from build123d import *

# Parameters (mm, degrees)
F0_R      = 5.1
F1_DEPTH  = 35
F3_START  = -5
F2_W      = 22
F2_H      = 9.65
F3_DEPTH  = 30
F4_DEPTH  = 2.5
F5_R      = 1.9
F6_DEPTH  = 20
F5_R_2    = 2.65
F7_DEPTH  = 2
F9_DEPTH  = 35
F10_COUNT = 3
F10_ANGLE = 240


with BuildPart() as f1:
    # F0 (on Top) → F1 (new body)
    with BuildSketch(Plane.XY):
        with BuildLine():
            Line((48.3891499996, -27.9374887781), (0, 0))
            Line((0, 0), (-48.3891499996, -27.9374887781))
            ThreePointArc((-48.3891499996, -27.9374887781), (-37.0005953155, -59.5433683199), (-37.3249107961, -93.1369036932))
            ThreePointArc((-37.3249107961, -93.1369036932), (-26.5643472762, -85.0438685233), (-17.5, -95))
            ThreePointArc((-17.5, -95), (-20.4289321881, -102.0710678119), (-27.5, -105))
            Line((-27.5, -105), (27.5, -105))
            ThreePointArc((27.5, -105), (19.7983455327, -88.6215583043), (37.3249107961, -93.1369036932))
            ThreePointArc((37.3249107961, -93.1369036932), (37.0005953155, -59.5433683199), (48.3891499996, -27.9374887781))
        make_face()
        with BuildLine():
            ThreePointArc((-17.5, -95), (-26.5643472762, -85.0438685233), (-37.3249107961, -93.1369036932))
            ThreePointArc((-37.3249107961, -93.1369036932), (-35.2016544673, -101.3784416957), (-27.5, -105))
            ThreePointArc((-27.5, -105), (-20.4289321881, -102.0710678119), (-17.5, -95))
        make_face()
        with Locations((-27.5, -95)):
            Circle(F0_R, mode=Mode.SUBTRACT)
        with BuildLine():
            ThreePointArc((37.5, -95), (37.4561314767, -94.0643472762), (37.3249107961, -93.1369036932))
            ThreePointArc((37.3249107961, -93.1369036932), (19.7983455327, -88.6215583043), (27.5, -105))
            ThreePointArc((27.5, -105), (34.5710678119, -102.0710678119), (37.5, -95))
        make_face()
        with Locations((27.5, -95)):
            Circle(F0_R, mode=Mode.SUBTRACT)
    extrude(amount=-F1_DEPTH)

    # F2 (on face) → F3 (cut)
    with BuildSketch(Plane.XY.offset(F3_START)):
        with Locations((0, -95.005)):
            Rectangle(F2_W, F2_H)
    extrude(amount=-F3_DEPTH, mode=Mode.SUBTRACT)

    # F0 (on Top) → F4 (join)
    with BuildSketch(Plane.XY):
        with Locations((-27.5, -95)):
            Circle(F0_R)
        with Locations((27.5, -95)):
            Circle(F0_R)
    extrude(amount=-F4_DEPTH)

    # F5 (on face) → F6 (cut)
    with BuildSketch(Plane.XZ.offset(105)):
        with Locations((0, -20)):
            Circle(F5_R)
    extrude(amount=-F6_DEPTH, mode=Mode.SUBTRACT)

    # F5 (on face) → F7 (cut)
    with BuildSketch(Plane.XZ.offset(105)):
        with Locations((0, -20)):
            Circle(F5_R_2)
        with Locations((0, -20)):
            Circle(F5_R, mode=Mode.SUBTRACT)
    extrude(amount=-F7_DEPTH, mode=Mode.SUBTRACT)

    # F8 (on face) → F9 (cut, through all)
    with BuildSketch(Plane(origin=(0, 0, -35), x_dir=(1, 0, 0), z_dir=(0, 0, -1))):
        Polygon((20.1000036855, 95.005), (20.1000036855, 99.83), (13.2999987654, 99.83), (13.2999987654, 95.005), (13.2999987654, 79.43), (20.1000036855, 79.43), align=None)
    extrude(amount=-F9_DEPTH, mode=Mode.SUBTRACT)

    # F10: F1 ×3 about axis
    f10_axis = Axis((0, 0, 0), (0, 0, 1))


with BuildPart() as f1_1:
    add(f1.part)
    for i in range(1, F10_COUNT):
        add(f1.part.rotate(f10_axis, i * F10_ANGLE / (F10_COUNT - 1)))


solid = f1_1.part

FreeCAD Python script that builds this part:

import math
import FreeCAD as App
import Part
import Sketcher
from FreeCAD import Vector
Q = App.Units.Quantity


def add_polygon(sketch, points):
    """Adds a closed chain of lines whose ends are joined by coincident constraints."""
    first, n = sketch.GeometryCount, len(points)
    for a, b in zip(points, points[1:] + points[:1]):
        sketch.addGeometry(Part.LineSegment(App.Vector(*a, 0), App.Vector(*b, 0)), False)
    for i in range(n):
        sketch.addConstraint(Sketcher.Constraint("Coincident", first + i, 2, first + (i + 1) % n, 1))

doc = App.newDocument("Part")
body = doc.addObject("PartDesign::Body", "Body")

sketch1 = body.newObject("Sketcher::SketchObject", "Sketch")
sketch1.AttachmentSupport = (doc.getObject("XY_Plane"), [""])
sketch1.MapMode = "FlatFace"
sketch1.addGeometry([
    Part.LineSegment(Vector(48.4, -27.9, 0), Vector(0, 0, 0)),
    Part.LineSegment(Vector(0, 0, 0), Vector(-48.4, -27.9, 0)),
    Part.ArcOfCircle(Part.Circle(Vector(-130.7, -75.4, 0), Vector(0, 0, 1), 95), math.radians(-11), math.radians(30)),
    Part.ArcOfCircle(Part.Circle(Vector(-27.5, -95, 0), Vector(0, 0, 1), 10), math.radians(169), math.radians(270)),
    Part.LineSegment(Vector(-27.5, -105, 0), Vector(27.5, -105, 0)),
    Part.ArcOfCircle(Part.Circle(Vector(27.5, -95, 0), Vector(0, 0, 1), 10), math.radians(-90), math.radians(0)),
    Part.ArcOfCircle(Part.Circle(Vector(27.5, -95, 0), Vector(0, 0, 1), 10), math.radians(0), math.radians(10.74)),
    Part.ArcOfCircle(Part.Circle(Vector(130.7, -75.4, 0), Vector(0, 0, 1), 95), math.radians(150), math.radians(191)),
    Part.Circle(Vector(-27.5, -95, 0), Vector(0, 0, 1), 5.1),
    Part.Circle(Vector(27.5, -95, 0), Vector(0, 0, 1), 5.1),
], False)
sketch1.addConstraint([
    Sketcher.Constraint("Coincident", 0, 2, 1, 1),
    Sketcher.Constraint("Coincident", 1, 2, 2, 2),
    Sketcher.Constraint("Tangent", 2, 1, 3, 1),
    Sketcher.Constraint("Tangent", 3, 2, 4, 1),
    Sketcher.Constraint("Tangent", 4, 2, 5, 1),
    Sketcher.Constraint("Tangent", 5, 2, 6, 1),
    Sketcher.Constraint("Tangent", 6, 2, 7, 2),
    Sketcher.Constraint("Coincident", 7, 1, 0, 1),
    Sketcher.Constraint("Horizontal", 4),
    Sketcher.Constraint("Coincident", 0, 2, -1, 1),
    Sketcher.Constraint("Coincident", 8, 3, 3, 3),
    Sketcher.Constraint("Coincident", 9, 3, 5, 3),
    Sketcher.Constraint("Equal", 3, 5),
    Sketcher.Constraint("Equal", 5, 6),
    Sketcher.Constraint("Equal", 2, 7),
    Sketcher.Constraint("Equal", 8, 9),
    Sketcher.Constraint("Symmetric", 2, 3, 7, 3, -2),
    Sketcher.Constraint("Horizontal", 9, 3, 5, 2),
    Sketcher.Constraint("Horizontal", 1, 2, 7, 1),
    Sketcher.Constraint("Radius", 2, 95.0),
    Sketcher.Constraint("Radius", 3, 10.0),
    Sketcher.Constraint("Diameter", 8, 10.2),
    Sketcher.Constraint("DistanceX", 4, 1, 4, 2, 55.0),
    Sketcher.Constraint("Angle", 0, Q("150 deg")),
    Sketcher.Constraint("DistanceY", 3, 3, -1, 1, 95.0),
    Sketcher.Constraint("DistanceY", 2, 3, 1, 2, 47.5),
])
pad1 = body.newObject("PartDesign::Pad", "Pad")
pad1.Profile = sketch1
pad1.Length = 35
pad1.Reversed = True

sketch2 = body.newObject("Sketcher::SketchObject", "Sketch001")
sketch2.AttachmentSupport = (doc.getObject("XY_Plane"), [""])
sketch2.MapMode = "FlatFace"
sketch2.AttachmentOffset = App.Placement(Vector(0, 0, -5), App.Rotation())
add_polygon(sketch2, [(-11, -90), (-11, -100), (11, -100), (11, -90)])
sketch2.addConstraint([
    Sketcher.Constraint("Vertical", 0),
    Sketcher.Constraint("Horizontal", 1),
    Sketcher.Constraint("Vertical", 2),
    Sketcher.Constraint("Horizontal", 3),
    Sketcher.Constraint("DistanceX", 1, 1, 1, 2, 22.0),
    Sketcher.Constraint("DistanceX", 0, 2, -1, 1, 11.0),
    Sketcher.Constraint("DistanceY", 0, 2, 0, 1, 9.65),
    Sketcher.Constraint("DistanceY", 0, 2, -1, 1, 99.83),
])
pocket1 = body.newObject("PartDesign::Pocket", "Pocket")
pocket1.Profile = sketch2
pocket1.Length = 30

sketch3 = body.newObject("Sketcher::SketchObject", "Sketch002")
sketch3.AttachmentSupport = (doc.getObject("XY_Plane"), [""])
sketch3.MapMode = "FlatFace"
sketch3.addGeometry([
    Part.Circle(Vector(-28, -95, 0), Vector(0, 0, 1), 5),
    Part.Circle(Vector(28, -95, 0), Vector(0, 0, 1), 5),
], False)
sketch3.addConstraint([
    Sketcher.Constraint("Equal", 0, 1),
    Sketcher.Constraint("Symmetric", 0, 3, 1, 3, -2),
    Sketcher.Constraint("Diameter", 0, 10.2),
    Sketcher.Constraint("DistanceY", 0, 3, -1, 1, 95.0),
    Sketcher.Constraint("DistanceX", 0, 3, 1, 3, 55.0),
])
pad2 = body.newObject("PartDesign::Pad", "Pad001")
pad2.Profile = sketch3
pad2.Length = 2.5
pad2.Reversed = True

sketch4 = body.newObject("Sketcher::SketchObject", "Sketch003")
sketch4.AttachmentSupport = (doc.getObject("XZ_Plane"), [""])
sketch4.MapMode = "FlatFace"
sketch4.AttachmentOffset = App.Placement(Vector(0, 0, 105), App.Rotation())
sketch4.addGeometry(Part.Circle(Vector(0, -20, 0), Vector(0, 0, 1), 1.9), False)
sketch4.addConstraint([
    Sketcher.Constraint("PointOnObject", 0, 3, -2),
    Sketcher.Constraint("Diameter", 0, 3.8),
    Sketcher.Constraint("DistanceY", 0, 3, -1, 1, 20.0),
])
pocket2 = body.newObject("PartDesign::Pocket", "Pocket001")
pocket2.Profile = sketch4
pocket2.Length = 20

sketch5 = body.newObject("Sketcher::SketchObject", "Sketch004")
sketch5.AttachmentSupport = (doc.getObject("XZ_Plane"), [""])
sketch5.MapMode = "FlatFace"
sketch5.AttachmentOffset = App.Placement(Vector(0, 0, 105), App.Rotation())
sketch5.addGeometry([
    Part.Circle(Vector(0, -20, 0), Vector(0, 0, 1), 2.6),
    Part.Circle(Vector(0, -20, 0), Vector(0, 0, 1), 1.9),
], False)
sketch5.addConstraint([
    Sketcher.Constraint("Coincident", 1, 3, 0, 3),
    Sketcher.Constraint("PointOnObject", 0, 3, -2),
    Sketcher.Constraint("Diameter", 0, 5.3),
    Sketcher.Constraint("Diameter", 1, 3.8),
    Sketcher.Constraint("DistanceY", 0, 3, -1, 1, 20.0),
])
pocket3 = body.newObject("PartDesign::Pocket", "Pocket002")
pocket3.Profile = sketch5
pocket3.Length = 2

sketch6 = body.newObject("Sketcher::SketchObject", "Sketch005")
sketch6.AttachmentSupport = (doc.getObject("XY_Plane"), [""])
sketch6.MapMode = "FlatFace"
sketch6.AttachmentOffset = App.Placement(Vector(0, 0, -35), App.Rotation())
add_polygon(sketch6, [(20, -100), (13, -100), (13, -79), (20, -79)])
sketch6.addConstraint([
    Sketcher.Constraint("Horizontal", 0),
    Sketcher.Constraint("Vertical", 1),
    Sketcher.Constraint("Horizontal", 2),
    Sketcher.Constraint("Vertical", 3),
    Sketcher.Constraint("DistanceY", 1, 1, 1, 2, 20.4),
    Sketcher.Constraint("DistanceX", -1, 1, 0, 2, 13.299999),
    Sketcher.Constraint("DistanceY", 0, 2, -1, 1, 99.83),
    Sketcher.Constraint("DistanceX", 0, 2, 0, 1, 6.800005),
])
pocket4 = body.newObject("PartDesign::Pocket", "Pocket003")
pocket4.Profile = sketch6
pocket4.Type = "ThroughAll"
pocket4.Reversed = True
body2 = doc.addObject("PartDesign::Body", "Body001")
doc.recompute()

body2.BaseFeature = body
doc.recompute()

body3 = doc.addObject("PartDesign::Body", "Body002")
body3.BaseFeature = body
body3.Placement = App.Placement(Vector(0, 0, 0), App.Rotation(Vector(0, 0, 1), 120))
boolean = body2.newObject("PartDesign::Boolean", "Boolean")
boolean.Type = "Fuse"
boolean.addObjects([body3])
doc.recompute()

body.Placement = App.Placement(Vector(0, 0, 0), App.Rotation(Vector(0, 0, 1), 240))
boolean2 = body2.newObject("PartDesign::Boolean", "Boolean001")
boolean2.Type = "Fuse"
boolean2.addObjects([body])

doc.recompute()
